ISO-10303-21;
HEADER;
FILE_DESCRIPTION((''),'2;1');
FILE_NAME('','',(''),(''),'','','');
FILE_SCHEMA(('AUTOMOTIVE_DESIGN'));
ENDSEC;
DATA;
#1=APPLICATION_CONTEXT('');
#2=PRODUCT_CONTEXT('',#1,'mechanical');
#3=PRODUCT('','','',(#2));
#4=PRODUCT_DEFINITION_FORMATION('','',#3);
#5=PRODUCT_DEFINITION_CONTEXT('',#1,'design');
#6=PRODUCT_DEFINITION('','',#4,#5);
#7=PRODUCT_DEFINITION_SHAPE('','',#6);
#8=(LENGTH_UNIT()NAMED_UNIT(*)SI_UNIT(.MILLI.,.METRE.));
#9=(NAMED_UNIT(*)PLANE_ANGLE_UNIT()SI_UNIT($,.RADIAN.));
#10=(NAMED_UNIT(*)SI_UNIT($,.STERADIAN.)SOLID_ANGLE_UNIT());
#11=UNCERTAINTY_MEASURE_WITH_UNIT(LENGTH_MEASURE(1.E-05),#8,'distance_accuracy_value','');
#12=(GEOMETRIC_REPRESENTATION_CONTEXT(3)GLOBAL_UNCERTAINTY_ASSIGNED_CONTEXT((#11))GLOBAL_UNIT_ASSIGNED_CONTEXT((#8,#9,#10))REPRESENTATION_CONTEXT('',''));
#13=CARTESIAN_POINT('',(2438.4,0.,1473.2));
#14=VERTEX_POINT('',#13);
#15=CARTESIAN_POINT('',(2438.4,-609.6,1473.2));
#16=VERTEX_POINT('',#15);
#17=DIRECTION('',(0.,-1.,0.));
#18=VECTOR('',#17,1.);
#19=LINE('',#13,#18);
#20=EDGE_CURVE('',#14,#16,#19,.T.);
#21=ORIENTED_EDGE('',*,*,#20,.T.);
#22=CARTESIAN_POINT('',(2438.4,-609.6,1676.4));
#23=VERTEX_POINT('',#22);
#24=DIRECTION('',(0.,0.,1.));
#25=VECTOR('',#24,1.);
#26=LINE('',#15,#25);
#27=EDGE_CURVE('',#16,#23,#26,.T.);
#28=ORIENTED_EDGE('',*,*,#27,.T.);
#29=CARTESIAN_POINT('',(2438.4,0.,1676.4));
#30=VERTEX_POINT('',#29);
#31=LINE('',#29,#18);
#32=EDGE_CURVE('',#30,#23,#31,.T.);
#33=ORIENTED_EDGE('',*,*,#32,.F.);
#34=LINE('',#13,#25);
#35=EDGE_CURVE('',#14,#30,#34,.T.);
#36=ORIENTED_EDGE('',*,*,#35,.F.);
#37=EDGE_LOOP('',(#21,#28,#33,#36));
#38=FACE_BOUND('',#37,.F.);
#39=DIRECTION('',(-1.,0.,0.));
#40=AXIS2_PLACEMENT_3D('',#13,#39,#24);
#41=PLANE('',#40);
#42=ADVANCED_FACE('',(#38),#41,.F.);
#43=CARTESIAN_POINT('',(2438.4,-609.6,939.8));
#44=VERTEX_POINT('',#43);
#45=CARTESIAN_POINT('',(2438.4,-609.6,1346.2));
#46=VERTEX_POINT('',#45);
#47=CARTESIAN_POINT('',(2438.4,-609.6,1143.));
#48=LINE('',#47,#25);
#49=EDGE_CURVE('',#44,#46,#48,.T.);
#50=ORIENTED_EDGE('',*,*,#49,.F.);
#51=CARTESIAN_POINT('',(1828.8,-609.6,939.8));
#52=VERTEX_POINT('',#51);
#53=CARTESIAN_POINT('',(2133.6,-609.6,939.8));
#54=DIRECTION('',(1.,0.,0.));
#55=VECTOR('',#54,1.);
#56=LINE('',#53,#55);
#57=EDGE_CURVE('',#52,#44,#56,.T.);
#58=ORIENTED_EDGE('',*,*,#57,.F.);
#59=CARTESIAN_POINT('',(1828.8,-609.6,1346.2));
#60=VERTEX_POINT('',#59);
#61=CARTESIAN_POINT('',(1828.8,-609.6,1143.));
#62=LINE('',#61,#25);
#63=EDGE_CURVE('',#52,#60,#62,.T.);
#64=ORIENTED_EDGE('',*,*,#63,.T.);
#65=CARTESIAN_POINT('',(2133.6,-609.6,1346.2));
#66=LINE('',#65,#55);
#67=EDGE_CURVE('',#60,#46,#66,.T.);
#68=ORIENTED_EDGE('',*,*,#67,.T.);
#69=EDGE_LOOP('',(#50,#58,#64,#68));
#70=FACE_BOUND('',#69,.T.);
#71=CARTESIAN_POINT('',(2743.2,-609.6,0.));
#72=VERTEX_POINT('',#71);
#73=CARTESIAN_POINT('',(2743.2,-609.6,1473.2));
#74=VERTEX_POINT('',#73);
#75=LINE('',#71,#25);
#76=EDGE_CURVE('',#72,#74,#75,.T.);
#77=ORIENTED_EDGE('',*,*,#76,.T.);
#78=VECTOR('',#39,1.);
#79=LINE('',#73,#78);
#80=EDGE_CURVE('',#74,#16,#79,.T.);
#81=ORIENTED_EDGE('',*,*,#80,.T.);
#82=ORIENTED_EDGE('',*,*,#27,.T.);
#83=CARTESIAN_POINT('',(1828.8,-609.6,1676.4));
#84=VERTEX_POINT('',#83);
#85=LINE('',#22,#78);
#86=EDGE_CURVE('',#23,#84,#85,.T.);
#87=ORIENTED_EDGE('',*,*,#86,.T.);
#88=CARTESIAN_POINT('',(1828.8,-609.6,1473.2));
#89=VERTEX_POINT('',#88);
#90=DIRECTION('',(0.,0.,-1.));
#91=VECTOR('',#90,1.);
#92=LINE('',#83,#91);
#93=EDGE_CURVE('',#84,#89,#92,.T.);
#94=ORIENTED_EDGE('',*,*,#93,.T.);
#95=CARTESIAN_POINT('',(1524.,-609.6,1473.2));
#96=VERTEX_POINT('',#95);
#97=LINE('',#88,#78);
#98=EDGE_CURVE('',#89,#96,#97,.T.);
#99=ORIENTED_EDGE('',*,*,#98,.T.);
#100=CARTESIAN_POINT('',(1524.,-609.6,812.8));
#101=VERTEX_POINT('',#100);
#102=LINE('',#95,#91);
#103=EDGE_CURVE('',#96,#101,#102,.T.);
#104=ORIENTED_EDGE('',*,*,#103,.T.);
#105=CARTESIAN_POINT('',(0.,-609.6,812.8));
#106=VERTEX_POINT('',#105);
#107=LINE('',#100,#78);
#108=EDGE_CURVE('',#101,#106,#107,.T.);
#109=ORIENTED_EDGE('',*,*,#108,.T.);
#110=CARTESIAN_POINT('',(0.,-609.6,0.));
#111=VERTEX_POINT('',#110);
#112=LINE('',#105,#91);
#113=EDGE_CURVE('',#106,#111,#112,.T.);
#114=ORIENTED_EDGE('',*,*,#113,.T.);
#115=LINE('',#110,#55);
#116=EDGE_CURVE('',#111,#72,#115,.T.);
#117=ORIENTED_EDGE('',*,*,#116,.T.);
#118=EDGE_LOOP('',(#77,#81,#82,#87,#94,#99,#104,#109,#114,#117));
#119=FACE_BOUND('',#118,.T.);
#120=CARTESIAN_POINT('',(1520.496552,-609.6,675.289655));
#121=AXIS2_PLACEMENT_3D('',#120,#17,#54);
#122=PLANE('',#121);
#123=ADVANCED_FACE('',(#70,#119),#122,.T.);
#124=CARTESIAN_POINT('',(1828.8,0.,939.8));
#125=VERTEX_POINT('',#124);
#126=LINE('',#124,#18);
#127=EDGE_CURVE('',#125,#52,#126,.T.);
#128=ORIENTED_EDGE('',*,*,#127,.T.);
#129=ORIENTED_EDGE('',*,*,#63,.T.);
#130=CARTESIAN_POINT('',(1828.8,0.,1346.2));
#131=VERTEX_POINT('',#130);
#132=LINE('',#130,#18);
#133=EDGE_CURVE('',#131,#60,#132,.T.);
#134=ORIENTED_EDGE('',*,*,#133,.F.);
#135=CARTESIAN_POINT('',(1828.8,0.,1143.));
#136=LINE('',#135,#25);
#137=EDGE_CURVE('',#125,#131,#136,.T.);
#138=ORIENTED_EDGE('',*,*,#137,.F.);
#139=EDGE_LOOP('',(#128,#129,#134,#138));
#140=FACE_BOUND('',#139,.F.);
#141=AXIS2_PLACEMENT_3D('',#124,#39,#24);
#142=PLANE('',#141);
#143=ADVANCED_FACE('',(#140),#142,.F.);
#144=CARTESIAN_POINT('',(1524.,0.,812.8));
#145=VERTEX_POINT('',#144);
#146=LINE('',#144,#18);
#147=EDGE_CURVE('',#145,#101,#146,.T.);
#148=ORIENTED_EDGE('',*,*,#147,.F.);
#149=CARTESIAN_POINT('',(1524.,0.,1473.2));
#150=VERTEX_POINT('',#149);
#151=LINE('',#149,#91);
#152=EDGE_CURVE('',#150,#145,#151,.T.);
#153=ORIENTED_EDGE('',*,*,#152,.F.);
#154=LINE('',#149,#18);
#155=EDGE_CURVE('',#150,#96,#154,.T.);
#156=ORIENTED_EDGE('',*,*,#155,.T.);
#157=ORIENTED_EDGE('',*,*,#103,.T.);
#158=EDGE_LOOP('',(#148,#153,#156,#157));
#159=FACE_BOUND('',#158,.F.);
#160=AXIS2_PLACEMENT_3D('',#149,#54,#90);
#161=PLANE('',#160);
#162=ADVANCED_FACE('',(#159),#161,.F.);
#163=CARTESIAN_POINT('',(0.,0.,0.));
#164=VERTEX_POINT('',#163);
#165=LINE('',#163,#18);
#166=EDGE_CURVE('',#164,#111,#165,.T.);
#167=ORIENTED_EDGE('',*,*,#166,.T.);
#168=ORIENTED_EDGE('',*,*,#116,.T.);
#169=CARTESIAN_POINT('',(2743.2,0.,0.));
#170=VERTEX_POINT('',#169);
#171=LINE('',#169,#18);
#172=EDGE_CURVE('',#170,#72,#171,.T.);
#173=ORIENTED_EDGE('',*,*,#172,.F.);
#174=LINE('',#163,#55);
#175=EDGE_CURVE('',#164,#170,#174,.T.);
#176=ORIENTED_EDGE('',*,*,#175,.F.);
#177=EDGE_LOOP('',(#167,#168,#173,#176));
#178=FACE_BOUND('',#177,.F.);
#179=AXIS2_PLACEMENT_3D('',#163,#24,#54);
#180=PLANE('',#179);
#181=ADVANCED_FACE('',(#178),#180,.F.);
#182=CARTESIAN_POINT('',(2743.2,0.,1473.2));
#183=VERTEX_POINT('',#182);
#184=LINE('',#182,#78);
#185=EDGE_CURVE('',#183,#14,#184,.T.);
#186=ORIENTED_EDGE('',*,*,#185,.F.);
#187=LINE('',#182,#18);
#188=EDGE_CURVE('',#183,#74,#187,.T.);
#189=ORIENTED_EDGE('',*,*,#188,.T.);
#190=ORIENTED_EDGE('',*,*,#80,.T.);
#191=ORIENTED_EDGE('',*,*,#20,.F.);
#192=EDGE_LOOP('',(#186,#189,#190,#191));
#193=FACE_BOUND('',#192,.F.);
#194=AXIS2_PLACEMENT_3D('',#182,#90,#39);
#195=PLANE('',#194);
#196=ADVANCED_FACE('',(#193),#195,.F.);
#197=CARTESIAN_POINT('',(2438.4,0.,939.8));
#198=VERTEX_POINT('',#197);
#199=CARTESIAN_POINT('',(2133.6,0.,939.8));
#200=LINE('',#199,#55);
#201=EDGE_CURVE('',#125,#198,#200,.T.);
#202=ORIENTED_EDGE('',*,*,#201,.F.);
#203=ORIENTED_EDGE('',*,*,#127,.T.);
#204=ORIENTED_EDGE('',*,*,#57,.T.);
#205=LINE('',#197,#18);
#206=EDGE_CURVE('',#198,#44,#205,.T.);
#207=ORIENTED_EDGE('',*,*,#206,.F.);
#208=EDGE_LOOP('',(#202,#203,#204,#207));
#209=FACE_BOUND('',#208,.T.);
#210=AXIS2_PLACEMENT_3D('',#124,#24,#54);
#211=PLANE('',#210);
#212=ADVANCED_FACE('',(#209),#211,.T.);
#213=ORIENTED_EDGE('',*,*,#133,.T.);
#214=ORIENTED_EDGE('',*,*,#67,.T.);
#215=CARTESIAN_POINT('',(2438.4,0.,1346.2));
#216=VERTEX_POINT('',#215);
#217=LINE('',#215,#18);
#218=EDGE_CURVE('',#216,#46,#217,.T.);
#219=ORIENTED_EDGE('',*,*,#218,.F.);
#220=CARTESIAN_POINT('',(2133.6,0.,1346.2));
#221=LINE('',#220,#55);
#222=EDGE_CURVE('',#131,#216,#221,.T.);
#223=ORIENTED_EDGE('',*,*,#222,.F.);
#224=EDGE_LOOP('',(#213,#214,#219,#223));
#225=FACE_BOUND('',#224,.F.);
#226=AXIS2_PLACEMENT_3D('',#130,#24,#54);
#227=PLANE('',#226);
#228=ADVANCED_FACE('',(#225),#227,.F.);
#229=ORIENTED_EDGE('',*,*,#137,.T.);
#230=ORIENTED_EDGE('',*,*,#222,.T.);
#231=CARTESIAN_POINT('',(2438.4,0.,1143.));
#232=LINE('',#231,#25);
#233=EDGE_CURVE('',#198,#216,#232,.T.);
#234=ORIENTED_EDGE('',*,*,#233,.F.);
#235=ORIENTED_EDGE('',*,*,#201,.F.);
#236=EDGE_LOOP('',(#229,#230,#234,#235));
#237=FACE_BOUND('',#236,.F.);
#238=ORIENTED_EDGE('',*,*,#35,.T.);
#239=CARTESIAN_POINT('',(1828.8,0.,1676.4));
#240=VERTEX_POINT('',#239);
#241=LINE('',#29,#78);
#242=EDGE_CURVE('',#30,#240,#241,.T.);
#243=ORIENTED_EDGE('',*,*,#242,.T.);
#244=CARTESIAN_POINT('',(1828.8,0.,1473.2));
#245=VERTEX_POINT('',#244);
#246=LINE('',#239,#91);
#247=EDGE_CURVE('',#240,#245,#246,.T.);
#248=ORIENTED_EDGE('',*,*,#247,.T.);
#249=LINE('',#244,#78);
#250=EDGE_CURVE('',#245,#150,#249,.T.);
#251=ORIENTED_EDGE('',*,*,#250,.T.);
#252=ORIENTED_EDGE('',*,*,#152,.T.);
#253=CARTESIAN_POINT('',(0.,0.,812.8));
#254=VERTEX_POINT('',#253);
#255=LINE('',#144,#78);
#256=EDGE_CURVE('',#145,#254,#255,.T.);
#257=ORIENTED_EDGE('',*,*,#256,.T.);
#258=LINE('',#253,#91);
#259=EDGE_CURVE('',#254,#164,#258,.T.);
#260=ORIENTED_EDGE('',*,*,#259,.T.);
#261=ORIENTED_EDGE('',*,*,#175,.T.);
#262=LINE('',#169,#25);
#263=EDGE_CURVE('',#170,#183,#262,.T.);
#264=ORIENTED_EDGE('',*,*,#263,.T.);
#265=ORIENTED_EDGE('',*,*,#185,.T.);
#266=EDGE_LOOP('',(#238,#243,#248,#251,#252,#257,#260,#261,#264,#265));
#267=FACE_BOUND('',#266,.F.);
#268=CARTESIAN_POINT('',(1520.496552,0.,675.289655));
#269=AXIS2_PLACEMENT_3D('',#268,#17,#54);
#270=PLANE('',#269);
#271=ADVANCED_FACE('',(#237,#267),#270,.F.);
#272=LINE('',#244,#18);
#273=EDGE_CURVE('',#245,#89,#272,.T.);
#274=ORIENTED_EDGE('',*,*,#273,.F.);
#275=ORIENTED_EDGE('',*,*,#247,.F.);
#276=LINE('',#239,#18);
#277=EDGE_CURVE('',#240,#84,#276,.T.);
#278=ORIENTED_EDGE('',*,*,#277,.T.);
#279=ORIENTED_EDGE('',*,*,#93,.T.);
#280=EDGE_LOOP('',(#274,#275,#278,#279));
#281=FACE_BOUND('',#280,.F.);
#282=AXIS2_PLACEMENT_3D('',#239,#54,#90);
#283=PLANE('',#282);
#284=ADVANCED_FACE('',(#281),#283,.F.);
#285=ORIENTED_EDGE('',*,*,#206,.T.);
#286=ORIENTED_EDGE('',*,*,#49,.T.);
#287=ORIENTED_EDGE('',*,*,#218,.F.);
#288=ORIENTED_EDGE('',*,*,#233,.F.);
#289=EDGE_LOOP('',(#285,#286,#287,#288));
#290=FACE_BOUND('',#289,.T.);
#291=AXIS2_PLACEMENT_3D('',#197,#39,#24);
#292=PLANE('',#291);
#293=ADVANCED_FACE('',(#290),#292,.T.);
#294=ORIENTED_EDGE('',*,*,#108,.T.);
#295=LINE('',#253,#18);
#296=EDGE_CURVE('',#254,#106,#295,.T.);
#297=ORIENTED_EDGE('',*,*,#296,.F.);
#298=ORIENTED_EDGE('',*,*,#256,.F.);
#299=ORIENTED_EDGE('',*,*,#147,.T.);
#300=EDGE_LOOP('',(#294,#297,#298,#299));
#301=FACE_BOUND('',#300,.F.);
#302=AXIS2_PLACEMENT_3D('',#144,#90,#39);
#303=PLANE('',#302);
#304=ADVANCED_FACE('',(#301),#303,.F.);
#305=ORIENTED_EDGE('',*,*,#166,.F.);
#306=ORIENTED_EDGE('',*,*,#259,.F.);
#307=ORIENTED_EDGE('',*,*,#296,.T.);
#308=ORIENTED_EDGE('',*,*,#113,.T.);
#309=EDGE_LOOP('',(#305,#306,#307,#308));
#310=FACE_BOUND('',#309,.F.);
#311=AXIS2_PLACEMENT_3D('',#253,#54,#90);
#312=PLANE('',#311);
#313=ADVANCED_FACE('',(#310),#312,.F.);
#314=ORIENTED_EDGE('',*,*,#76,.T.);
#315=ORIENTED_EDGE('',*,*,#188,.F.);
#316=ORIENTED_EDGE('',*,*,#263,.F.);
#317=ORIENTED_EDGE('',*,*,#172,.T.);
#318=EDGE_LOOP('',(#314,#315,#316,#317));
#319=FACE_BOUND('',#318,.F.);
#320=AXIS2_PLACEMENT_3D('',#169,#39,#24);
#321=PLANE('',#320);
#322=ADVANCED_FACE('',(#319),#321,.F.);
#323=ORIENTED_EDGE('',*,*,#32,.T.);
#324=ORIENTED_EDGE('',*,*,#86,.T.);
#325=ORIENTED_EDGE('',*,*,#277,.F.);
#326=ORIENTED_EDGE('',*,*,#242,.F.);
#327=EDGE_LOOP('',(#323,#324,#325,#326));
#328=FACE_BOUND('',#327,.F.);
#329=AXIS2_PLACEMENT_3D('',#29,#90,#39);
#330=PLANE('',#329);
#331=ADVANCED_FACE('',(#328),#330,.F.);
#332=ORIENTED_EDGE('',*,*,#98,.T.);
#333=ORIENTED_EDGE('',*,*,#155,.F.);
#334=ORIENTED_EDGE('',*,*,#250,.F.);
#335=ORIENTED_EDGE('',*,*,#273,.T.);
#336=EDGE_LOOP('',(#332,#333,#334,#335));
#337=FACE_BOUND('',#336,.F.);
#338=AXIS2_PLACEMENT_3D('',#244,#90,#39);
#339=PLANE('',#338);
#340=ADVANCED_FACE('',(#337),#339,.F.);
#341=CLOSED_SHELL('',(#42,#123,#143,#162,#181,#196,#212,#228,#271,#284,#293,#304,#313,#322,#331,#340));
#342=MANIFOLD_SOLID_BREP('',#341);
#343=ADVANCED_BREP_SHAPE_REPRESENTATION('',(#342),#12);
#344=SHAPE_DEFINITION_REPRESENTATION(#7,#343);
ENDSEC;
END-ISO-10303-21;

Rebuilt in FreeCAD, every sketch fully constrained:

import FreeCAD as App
import Part
import Sketcher

V = App.Vector
Q = App.Units.Quantity

doc = App.newDocument("Part")
body = doc.addObject("PartDesign::Body", "Body")

sketch1 = body.newObject("Sketcher::SketchObject", "Sketch")
sketch1.AttachmentSupport = (doc.getObject("XZ_Plane"), [""])
sketch1.MapMode = "FlatFace"
sketch1.addGeometry([
    Part.LineSegment(V(0, 813, 0), V(0, 0, 0)),
    Part.LineSegment(V(0, 0, 0), V(2743, 0, 0)),
    Part.LineSegment(V(2743, 0, 0), V(2743, 1473, 0)),
    Part.LineSegment(V(2743, 1473, 0), V(2438, 1473, 0)),
    Part.LineSegment(V(2438, 1473, 0), V(2438, 1676, 0)),
    Part.LineSegment(V(2438, 1676, 0), V(1829, 1676, 0)),
    Part.LineSegment(V(1829, 1676, 0), V(1829, 1473, 0)),
    Part.LineSegment(V(1829, 1473, 0), V(1524, 1473, 0)),
    Part.LineSegment(V(1524, 1473, 0), V(1524, 813, 0)),
    Part.LineSegment(V(1524, 813, 0), V(0, 813, 0)),
    Part.LineSegment(V(2438, 940, 0), V(1829, 940, 0)),
    Part.LineSegment(V(1829, 940, 0), V(1829, 1346, 0)),
    Part.LineSegment(V(1829, 1346, 0), V(2438, 1346, 0)),
    Part.LineSegment(V(2438, 1346, 0), V(2438, 940, 0)),
], False)
sketch1.addConstraint([
    Sketcher.Constraint("Coincident", 0, 2, 1, 1),
    Sketcher.Constraint("Coincident", 1, 2, 2, 1),
    Sketcher.Constraint("Coincident", 2, 2, 3, 1),
    Sketcher.Constraint("Coincident", 3, 2, 4, 1),
    Sketcher.Constraint("Coincident", 4, 2, 5, 1),
    Sketcher.Constraint("Coincident", 5, 2, 6, 1),
    Sketcher.Constraint("Coincident", 6, 2, 7, 1),
    Sketcher.Constraint("Coincident", 7, 2, 8, 1),
    Sketcher.Constraint("Coincident", 8, 2, 9, 1),
    Sketcher.Constraint("Coincident", 9, 2, 0, 1),
    Sketcher.Constraint("Coincident", 10, 2, 11, 1),
    Sketcher.Constraint("Coincident", 11, 2, 12, 1),
    Sketcher.Constraint("Coincident", 12, 2, 13, 1),
    Sketcher.Constraint("Coincident", 13, 2, 10, 1),
    Sketcher.Constraint("Vertical", 0),
    Sketcher.Constraint("Horizontal", 1),
    Sketcher.Constraint("Vertical", 2),
    Sketcher.Constraint("Horizontal", 3),
    Sketcher.Constraint("Vertical", 4),
    Sketcher.Constraint("Horizontal", 5),
    Sketcher.Constraint("Vertical", 6),
    Sketcher.Constraint("Horizontal", 7),
    Sketcher.Constraint("Vertical", 8),
    Sketcher.Constraint("Horizontal", 9),
    Sketcher.Constraint("Horizontal", 10),
    Sketcher.Constraint("Vertical", 11),
    Sketcher.Constraint("Horizontal", 12),
    Sketcher.Constraint("Vertical", 13),
    Sketcher.Constraint("Coincident", 0, 2, -1, 1),
    Sketcher.Constraint("Horizontal", 3, 2, 6, 2),
    Sketcher.Constraint("Vertical", 6, 2, 10, 2),
    Sketcher.Constraint("Vertical", 4, 2, 12, 2),
    Sketcher.Constraint("Equal", 3, 7),
    Sketcher.Constraint("DistanceX", 1, 1, 1, 2, Q("108 in")),
    Sketcher.Constraint("DistanceX", 3, 2, 3, 1, Q("12 in")),
    Sketcher.Constraint("DistanceX", 5, 2, 5, 1, Q("24 in")),
    Sketcher.Constraint("DistanceY", 0, 2, 0, 1, Q("32 in")),
    Sketcher.Constraint("DistanceY", 2, 1, 2, 2, Q("58 in")),
    Sketcher.Constraint("DistanceY", 4, 1, 4, 2, Q("8 in")),
    Sketcher.Constraint("DistanceY", 11, 1, 11, 2, Q("16 in")),
    Sketcher.Constraint("DistanceY", -1, 1, 10, 2, Q("37 in")),
])
pad1 = body.newObject("PartDesign::Pad", "Pad")
pad1.Profile = sketch1
pad1.Length = Q("24 in")

doc.recompute()
